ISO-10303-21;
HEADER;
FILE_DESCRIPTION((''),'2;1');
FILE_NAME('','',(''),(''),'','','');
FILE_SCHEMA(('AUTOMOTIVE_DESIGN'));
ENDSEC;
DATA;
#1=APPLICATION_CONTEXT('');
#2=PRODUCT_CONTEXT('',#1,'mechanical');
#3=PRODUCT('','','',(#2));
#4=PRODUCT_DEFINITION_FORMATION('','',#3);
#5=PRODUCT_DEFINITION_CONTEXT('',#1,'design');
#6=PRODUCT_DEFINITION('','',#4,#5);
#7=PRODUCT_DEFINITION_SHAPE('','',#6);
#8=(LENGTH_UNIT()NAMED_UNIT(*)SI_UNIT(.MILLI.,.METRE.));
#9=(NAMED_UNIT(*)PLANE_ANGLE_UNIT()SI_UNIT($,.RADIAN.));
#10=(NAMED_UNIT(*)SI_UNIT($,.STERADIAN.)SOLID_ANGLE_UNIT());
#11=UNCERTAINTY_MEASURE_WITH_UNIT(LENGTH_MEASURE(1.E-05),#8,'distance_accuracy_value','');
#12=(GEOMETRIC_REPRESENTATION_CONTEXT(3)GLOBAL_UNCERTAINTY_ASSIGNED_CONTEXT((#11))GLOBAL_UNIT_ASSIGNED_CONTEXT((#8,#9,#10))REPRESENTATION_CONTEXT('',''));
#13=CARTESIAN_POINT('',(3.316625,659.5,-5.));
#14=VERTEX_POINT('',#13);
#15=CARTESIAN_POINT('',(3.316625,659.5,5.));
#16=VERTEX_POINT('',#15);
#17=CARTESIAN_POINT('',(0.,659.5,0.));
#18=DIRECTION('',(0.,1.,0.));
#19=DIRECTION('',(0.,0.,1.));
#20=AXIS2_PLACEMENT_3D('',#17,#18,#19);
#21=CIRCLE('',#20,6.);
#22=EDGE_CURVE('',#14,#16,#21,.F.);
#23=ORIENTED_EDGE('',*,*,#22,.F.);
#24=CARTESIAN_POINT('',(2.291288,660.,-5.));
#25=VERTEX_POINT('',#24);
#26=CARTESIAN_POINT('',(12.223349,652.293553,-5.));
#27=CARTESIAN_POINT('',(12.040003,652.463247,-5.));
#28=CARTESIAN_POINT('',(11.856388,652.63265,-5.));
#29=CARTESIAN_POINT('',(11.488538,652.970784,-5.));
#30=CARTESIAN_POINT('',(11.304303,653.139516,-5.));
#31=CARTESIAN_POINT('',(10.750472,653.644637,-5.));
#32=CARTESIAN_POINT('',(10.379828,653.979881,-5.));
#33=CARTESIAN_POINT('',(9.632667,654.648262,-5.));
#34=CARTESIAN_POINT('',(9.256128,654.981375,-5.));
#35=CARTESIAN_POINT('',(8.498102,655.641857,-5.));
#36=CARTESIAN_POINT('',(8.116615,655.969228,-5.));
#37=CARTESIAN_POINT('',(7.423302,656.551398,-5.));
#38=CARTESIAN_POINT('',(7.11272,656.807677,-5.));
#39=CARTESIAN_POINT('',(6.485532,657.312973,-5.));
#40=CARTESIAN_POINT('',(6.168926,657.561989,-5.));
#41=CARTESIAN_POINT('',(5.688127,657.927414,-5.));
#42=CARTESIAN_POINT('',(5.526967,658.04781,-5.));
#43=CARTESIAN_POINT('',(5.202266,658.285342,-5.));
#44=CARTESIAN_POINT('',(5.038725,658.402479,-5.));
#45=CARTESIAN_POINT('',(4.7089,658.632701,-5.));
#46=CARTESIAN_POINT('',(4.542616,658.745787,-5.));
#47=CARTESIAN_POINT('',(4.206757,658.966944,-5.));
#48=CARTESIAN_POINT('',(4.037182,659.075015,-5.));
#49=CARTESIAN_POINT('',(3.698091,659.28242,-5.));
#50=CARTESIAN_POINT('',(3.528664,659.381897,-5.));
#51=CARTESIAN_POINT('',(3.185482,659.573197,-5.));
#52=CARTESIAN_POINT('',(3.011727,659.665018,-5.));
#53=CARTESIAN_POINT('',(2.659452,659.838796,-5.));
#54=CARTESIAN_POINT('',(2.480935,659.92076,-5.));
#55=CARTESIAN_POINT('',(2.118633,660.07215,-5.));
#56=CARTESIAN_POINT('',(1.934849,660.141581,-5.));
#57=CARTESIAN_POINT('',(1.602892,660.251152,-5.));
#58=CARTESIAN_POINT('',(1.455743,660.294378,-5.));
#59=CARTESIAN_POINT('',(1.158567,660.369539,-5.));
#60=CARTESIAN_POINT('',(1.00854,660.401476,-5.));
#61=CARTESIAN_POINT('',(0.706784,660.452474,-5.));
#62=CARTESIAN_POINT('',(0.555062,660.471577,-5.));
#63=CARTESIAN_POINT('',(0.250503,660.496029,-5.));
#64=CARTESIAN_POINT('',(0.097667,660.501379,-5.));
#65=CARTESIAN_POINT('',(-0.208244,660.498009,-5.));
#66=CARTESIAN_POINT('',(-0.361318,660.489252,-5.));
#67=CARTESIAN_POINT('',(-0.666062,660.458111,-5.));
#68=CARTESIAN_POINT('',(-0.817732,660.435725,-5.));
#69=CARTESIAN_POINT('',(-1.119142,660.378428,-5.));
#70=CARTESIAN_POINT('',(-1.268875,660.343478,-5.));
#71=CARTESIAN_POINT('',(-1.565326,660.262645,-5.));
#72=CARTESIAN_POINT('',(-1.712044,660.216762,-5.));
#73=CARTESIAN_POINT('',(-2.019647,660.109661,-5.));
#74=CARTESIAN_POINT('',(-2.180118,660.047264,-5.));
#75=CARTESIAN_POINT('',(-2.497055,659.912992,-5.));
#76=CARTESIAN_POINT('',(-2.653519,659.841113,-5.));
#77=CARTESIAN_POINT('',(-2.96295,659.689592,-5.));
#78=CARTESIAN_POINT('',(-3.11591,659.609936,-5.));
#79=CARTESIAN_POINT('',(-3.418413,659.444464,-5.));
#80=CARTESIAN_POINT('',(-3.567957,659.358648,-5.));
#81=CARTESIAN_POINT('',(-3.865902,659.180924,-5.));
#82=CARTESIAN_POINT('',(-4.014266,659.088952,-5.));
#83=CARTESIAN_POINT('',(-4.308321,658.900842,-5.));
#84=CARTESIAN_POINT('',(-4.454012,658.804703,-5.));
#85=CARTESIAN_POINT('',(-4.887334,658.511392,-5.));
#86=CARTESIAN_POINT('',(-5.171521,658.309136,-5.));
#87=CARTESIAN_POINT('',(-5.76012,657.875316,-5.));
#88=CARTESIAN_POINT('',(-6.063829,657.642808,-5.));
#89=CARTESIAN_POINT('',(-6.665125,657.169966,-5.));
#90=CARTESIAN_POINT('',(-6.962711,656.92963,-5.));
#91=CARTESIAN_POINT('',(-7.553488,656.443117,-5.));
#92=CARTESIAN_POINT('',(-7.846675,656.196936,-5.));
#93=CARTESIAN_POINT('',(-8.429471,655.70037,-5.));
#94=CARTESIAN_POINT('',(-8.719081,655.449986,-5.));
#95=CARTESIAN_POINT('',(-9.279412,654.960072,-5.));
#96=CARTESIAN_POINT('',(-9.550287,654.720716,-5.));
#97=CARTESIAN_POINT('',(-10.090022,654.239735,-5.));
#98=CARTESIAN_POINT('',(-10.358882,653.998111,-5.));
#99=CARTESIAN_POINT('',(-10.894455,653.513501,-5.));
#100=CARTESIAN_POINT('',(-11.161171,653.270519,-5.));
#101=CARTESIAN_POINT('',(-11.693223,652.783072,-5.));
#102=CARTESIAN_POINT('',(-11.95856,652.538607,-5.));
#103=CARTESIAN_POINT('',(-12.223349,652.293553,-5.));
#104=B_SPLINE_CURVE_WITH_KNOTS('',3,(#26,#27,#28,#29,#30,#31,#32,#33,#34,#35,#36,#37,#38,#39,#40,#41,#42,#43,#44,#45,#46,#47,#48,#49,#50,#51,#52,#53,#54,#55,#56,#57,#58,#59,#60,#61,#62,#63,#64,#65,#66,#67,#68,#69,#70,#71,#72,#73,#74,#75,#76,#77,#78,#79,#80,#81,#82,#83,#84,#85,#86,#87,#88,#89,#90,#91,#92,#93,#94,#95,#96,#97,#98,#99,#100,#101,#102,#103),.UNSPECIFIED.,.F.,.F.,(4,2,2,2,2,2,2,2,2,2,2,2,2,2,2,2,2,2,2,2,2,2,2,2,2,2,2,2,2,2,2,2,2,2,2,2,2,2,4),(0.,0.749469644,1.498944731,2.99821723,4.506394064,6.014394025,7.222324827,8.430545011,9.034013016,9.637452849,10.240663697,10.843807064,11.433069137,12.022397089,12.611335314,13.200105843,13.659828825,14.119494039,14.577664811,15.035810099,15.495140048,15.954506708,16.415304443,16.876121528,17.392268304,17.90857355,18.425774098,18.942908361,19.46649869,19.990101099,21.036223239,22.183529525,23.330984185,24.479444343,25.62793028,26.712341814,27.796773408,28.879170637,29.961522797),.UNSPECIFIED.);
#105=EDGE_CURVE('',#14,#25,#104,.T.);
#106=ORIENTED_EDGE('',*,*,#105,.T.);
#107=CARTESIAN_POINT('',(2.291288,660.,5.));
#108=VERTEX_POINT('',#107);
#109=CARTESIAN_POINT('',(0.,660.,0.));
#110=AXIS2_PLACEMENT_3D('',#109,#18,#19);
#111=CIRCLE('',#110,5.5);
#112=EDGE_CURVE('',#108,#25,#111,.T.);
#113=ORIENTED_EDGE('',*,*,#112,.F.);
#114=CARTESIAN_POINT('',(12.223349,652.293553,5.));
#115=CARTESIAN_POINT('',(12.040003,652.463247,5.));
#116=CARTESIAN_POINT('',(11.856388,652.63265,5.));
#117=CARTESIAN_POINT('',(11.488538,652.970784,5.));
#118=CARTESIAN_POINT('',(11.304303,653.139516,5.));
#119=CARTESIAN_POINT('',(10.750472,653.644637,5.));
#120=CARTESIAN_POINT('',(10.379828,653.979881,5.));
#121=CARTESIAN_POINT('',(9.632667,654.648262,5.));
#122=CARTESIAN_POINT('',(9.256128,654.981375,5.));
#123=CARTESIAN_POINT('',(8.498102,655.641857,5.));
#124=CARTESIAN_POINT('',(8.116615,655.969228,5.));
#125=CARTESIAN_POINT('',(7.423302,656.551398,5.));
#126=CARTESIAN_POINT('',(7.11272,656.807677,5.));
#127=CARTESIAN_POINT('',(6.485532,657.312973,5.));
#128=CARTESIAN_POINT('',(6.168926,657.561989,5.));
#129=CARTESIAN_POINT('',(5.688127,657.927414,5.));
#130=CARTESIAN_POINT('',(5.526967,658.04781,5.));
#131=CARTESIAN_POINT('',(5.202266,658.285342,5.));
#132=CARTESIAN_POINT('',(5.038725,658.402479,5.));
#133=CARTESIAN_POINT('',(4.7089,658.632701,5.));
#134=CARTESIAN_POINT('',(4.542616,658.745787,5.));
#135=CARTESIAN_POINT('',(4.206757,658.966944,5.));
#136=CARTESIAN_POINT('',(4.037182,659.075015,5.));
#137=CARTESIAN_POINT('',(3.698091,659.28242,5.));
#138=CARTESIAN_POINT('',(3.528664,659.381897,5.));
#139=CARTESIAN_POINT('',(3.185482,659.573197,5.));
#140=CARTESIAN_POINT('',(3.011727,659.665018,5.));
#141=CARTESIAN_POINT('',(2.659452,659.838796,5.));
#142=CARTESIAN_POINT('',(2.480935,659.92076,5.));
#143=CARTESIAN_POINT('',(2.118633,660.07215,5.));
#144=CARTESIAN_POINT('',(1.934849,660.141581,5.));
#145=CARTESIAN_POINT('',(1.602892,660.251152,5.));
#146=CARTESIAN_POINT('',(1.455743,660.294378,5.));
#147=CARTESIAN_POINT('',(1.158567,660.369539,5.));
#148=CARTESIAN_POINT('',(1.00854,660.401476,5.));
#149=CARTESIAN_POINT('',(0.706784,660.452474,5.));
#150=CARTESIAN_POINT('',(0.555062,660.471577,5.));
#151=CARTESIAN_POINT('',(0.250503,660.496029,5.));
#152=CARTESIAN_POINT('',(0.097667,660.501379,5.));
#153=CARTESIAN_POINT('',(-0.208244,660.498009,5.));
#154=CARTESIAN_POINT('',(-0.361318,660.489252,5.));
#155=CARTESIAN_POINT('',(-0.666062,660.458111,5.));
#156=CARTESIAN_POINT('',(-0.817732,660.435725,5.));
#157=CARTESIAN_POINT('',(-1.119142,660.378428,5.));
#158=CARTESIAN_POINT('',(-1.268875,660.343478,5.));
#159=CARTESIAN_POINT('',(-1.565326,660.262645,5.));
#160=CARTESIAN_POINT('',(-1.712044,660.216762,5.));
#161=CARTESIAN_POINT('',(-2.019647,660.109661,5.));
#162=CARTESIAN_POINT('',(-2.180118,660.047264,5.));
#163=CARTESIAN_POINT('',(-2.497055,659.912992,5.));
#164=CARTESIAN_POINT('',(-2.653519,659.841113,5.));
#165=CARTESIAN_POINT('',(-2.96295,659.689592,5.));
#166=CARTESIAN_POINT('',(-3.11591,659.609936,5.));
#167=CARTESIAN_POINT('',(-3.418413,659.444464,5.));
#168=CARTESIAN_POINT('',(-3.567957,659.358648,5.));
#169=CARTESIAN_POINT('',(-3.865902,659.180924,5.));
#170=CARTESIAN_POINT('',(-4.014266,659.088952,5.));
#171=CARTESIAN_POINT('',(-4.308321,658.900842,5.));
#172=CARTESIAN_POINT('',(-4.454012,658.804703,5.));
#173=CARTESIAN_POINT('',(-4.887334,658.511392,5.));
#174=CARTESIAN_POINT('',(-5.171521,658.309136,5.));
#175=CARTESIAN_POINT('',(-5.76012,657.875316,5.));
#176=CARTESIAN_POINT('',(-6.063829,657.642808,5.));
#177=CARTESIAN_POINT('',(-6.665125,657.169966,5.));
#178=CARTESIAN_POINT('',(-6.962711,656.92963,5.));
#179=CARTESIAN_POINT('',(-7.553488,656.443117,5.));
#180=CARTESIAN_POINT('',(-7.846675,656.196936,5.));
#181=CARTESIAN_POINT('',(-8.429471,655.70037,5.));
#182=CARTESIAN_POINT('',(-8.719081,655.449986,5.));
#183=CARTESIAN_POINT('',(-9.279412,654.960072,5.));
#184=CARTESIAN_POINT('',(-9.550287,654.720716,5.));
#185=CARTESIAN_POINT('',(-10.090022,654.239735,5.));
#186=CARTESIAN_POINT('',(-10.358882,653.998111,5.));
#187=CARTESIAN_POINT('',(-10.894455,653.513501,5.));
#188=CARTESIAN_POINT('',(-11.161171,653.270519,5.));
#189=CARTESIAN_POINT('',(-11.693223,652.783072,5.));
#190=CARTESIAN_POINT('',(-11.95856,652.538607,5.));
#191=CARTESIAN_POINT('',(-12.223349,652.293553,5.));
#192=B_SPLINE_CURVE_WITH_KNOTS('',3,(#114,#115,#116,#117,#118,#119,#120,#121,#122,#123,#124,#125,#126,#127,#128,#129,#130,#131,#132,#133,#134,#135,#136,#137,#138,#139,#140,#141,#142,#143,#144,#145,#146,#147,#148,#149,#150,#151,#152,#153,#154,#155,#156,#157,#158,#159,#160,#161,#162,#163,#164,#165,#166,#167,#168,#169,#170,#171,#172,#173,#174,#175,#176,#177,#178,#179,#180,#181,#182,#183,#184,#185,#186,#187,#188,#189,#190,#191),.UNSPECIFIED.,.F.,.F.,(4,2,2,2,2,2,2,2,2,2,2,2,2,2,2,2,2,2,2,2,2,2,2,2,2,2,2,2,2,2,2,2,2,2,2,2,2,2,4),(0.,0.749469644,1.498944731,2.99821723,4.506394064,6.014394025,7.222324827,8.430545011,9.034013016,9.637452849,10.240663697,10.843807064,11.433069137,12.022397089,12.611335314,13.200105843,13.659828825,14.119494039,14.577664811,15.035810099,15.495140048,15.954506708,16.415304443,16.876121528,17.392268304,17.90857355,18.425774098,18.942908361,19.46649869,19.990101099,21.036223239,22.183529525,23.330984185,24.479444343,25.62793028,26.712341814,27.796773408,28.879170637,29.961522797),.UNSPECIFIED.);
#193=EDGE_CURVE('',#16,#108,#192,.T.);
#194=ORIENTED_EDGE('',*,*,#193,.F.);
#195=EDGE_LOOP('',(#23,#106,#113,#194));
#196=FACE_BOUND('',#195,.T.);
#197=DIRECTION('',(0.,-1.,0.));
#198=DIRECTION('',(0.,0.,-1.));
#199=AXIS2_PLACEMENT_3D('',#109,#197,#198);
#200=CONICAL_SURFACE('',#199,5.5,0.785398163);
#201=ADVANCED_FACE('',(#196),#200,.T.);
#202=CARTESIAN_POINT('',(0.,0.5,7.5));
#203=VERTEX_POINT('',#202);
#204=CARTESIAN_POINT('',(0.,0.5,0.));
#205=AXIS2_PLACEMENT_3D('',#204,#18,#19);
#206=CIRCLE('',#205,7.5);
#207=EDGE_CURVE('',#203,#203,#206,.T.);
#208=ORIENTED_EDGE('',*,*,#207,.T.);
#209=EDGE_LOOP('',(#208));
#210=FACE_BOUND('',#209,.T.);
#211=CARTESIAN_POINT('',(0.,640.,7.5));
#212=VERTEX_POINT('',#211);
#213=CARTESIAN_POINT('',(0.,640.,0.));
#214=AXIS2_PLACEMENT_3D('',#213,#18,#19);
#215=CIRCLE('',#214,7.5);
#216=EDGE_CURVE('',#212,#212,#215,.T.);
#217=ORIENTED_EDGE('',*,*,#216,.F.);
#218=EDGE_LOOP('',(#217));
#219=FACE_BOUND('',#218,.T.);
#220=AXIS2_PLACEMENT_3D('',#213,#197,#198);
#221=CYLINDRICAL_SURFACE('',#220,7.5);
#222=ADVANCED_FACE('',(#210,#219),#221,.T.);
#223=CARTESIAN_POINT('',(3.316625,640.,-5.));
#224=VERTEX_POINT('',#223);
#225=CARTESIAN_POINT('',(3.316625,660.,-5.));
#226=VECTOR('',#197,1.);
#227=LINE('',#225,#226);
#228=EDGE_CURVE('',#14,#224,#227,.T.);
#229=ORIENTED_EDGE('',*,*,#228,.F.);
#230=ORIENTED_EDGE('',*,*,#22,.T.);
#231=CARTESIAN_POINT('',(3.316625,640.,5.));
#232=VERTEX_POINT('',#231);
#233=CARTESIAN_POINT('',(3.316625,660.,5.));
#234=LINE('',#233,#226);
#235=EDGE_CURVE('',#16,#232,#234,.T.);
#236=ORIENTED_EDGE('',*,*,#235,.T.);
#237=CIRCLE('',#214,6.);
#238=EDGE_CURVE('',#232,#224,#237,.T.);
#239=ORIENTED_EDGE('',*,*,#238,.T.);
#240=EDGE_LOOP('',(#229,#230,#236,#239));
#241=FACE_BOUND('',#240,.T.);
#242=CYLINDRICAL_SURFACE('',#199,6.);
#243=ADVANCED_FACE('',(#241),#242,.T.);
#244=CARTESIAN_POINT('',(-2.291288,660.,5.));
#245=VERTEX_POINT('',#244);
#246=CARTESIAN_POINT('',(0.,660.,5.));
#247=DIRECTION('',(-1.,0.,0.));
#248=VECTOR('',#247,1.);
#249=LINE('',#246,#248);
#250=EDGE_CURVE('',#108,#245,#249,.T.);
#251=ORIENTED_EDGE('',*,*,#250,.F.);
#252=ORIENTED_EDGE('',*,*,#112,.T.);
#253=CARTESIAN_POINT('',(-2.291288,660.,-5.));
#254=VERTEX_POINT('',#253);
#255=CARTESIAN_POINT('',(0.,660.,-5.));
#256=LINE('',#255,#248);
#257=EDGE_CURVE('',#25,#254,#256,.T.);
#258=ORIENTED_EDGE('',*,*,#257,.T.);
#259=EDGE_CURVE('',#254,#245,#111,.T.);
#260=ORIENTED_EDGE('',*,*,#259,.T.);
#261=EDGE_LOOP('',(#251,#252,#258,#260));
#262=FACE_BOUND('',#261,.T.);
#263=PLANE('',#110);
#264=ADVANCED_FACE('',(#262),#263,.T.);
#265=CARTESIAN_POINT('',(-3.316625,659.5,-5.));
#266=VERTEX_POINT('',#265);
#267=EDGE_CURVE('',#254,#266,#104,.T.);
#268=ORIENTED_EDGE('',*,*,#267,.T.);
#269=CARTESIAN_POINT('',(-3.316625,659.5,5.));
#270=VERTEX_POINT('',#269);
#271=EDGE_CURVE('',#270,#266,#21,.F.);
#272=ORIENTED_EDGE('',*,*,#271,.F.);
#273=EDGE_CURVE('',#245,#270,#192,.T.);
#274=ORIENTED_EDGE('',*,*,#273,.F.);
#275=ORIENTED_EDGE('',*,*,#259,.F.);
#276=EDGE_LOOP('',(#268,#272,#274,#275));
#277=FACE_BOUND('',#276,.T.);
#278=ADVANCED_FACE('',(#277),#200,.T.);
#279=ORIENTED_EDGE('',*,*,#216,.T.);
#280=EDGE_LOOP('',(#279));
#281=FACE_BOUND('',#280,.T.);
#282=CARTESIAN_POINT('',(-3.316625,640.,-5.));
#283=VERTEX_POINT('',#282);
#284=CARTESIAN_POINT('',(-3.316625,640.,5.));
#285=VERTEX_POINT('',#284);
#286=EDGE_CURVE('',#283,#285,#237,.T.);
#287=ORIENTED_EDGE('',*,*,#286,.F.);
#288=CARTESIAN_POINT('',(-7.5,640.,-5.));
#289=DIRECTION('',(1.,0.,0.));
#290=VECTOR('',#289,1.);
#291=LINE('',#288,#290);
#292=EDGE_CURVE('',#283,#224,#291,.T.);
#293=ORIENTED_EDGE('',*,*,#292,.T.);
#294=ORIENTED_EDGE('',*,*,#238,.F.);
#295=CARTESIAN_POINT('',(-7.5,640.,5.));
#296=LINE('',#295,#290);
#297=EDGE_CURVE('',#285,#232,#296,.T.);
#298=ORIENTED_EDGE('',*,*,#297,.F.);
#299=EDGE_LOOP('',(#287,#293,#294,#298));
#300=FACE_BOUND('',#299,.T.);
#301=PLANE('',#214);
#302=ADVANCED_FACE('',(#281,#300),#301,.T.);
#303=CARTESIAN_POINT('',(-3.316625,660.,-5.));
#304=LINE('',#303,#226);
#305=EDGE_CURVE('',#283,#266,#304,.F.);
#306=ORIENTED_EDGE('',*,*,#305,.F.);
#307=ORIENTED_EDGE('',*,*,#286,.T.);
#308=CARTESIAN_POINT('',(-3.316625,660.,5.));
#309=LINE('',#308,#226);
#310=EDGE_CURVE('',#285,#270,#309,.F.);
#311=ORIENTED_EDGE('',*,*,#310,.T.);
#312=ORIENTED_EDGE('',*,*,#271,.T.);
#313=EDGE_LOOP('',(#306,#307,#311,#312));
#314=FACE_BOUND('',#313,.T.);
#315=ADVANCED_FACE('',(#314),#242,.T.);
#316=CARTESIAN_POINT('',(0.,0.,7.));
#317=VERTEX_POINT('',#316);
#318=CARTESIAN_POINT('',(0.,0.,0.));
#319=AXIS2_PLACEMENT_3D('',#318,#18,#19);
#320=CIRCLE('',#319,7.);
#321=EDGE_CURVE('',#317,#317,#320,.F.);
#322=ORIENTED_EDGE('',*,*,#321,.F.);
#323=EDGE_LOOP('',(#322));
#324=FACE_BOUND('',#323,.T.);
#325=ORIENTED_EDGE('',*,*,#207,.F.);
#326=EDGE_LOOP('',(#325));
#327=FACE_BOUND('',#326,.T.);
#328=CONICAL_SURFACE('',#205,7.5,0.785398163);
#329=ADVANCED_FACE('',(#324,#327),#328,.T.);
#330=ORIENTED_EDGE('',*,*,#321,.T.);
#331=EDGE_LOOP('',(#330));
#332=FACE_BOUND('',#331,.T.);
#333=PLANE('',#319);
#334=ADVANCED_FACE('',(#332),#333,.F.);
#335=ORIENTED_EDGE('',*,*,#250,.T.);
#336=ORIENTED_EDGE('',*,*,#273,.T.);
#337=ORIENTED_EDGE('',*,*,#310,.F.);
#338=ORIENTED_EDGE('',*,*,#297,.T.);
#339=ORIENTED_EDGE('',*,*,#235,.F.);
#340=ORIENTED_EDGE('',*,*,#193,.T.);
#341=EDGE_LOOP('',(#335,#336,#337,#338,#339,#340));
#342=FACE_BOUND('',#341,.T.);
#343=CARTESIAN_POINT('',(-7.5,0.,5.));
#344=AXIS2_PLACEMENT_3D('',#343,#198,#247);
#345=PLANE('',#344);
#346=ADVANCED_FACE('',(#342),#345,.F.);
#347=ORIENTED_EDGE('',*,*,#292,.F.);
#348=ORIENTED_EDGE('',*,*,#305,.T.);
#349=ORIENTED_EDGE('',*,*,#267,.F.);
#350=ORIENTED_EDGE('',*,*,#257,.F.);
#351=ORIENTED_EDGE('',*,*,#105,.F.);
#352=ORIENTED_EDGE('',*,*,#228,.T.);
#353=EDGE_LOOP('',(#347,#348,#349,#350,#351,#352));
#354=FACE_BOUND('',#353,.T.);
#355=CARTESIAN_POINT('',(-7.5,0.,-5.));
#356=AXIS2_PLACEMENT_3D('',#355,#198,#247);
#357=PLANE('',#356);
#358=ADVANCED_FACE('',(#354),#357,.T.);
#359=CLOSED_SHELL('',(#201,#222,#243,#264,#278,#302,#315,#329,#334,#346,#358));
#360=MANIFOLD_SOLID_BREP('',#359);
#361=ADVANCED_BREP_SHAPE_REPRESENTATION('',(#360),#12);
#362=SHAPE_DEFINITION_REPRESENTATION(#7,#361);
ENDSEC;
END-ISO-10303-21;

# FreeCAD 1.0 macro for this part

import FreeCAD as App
import Part
import Sketcher

V = App.Vector


def edges_at(feature, points):
    """Names of the edges that pass closest to the given points."""
    edges = feature.Shape.Edges
    near = lambda p: min(range(len(edges)), key=lambda i: edges[i].distToShape(Part.Vertex(*p))[0])
    return sorted({f"Edge{near(p) + 1}" for p in points})


def add_polygon(sketch, points):
    """Adds a closed chain of lines whose ends are joined by coincident constraints."""
    first, n = sketch.GeometryCount, len(points)
    for a, b in zip(points, points[1:] + points[:1]):
        sketch.addGeometry(Part.LineSegment(App.Vector(*a, 0), App.Vector(*b, 0)), False)
    for i in range(n):
        sketch.addConstraint(Sketcher.Constraint("Coincident", first + i, 2, first + (i + 1) % n, 1))

doc = App.newDocument("Part")
body = doc.addObject("PartDesign::Body", "Body")

sketch1 = body.newObject("Sketcher::SketchObject", "Sketch")
sketch1.AttachmentSupport = (doc.getObject("XZ_Plane"), [""])
sketch1.MapMode = "FlatFace"
sketch1.addGeometry(Part.Circle(V(0, 0, 0), V(0, 0, 1), 8), False)
sketch1.addConstraint(Sketcher.Constraint("Coincident", 0, 3, -1, 1))
sketch1.addConstraint(Sketcher.Constraint("Diameter", 0, 15.0))
pad1 = body.newObject("PartDesign::Pad", "Pad")
pad1.Profile = sketch1
pad1.Length = 640
pad1.Reversed = True

sketch2 = body.newObject("Sketcher::SketchObject", "Sketch001")
sketch2.AttachmentSupport = (doc.getObject("XZ_Plane"), [""])
sketch2.MapMode = "FlatFace"
sketch2.AttachmentOffset = App.Placement(V(0, 0, -640), App.Rotation())
sketch2.addGeometry(Part.Circle(V(0, 0, 0), V(0, 0, 1), 6), False)
sketch2.addConstraint(Sketcher.Constraint("Coincident", 0, 3, -1, 1))
sketch2.addConstraint(Sketcher.Constraint("Diameter", 0, 12.0))
pad2 = body.newObject("PartDesign::Pad", "Pad001")
pad2.Profile = sketch2
pad2.Length = 20
pad2.Reversed = True
doc.recompute()

chamfer = body.newObject("PartDesign::Chamfer", "Chamfer")
chamfer.Base = (pad2, edges_at(pad2, [(-6, 660, 0)]))
chamfer.Size = 0.5
doc.recompute()

chamfer2 = body.newObject("PartDesign::Chamfer", "Chamfer001")
chamfer2.Base = (chamfer, edges_at(chamfer, [(-7.5, 0, 0)]))
chamfer2.Size = 0.5

sketch3 = body.newObject("Sketcher::SketchObject", "Sketch002")
sketch3.AttachmentSupport = (doc.getObject("YZ_Plane"), [""])
sketch3.MapMode = "FlatFace"
add_polygon(sketch3, [(640, -5), (640, -14), (666, -14), (666, -5)])
add_polygon(sketch3, [(640, 14), (640, 5), (666, 5), (666, 14)])
sketch3.addConstraint(Sketcher.Constraint("Vertical", 0))
sketch3.addConstraint(Sketcher.Constraint("Horizontal", 1))
sketch3.addConstraint(Sketcher.Constraint("Vertical", 2))
sketch3.addConstraint(Sketcher.Constraint("Horizontal", 3))
sketch3.addConstraint(Sketcher.Constraint("Vertical", 4))
sketch3.addConstraint(Sketcher.Constraint("Horizontal", 5))
sketch3.addConstraint(Sketcher.Constraint("Vertical", 6))
sketch3.addConstraint(Sketcher.Constraint("Horizontal", 7))
sketch3.addConstraint(Sketcher.Constraint("Symmetric", 3, 2, 4, 2, -1))
sketch3.addConstraint(Sketcher.Constraint("Symmetric", 1, 2, 6, 2, -1))
sketch3.addConstraint(Sketcher.Constraint("DistanceX", -1, 1, 0, 2, 640.0))
sketch3.addConstraint(Sketcher.Constraint("DistanceY", 2, 2, -1, 1, 5.0))
sketch3.addConstraint(Sketcher.Constraint("DistanceX", 1, 1, 1, 2, 25.51818))
sketch3.addConstraint(Sketcher.Constraint("DistanceY", 0, 2, 0, 1, 8.892258))
pocket1 = body.newObject("PartDesign::Pocket", "Pocket")
pocket1.Profile = sketch3
pocket1.Type = "ThroughAll"
pocket1.Midplane = True

doc.recompute()
